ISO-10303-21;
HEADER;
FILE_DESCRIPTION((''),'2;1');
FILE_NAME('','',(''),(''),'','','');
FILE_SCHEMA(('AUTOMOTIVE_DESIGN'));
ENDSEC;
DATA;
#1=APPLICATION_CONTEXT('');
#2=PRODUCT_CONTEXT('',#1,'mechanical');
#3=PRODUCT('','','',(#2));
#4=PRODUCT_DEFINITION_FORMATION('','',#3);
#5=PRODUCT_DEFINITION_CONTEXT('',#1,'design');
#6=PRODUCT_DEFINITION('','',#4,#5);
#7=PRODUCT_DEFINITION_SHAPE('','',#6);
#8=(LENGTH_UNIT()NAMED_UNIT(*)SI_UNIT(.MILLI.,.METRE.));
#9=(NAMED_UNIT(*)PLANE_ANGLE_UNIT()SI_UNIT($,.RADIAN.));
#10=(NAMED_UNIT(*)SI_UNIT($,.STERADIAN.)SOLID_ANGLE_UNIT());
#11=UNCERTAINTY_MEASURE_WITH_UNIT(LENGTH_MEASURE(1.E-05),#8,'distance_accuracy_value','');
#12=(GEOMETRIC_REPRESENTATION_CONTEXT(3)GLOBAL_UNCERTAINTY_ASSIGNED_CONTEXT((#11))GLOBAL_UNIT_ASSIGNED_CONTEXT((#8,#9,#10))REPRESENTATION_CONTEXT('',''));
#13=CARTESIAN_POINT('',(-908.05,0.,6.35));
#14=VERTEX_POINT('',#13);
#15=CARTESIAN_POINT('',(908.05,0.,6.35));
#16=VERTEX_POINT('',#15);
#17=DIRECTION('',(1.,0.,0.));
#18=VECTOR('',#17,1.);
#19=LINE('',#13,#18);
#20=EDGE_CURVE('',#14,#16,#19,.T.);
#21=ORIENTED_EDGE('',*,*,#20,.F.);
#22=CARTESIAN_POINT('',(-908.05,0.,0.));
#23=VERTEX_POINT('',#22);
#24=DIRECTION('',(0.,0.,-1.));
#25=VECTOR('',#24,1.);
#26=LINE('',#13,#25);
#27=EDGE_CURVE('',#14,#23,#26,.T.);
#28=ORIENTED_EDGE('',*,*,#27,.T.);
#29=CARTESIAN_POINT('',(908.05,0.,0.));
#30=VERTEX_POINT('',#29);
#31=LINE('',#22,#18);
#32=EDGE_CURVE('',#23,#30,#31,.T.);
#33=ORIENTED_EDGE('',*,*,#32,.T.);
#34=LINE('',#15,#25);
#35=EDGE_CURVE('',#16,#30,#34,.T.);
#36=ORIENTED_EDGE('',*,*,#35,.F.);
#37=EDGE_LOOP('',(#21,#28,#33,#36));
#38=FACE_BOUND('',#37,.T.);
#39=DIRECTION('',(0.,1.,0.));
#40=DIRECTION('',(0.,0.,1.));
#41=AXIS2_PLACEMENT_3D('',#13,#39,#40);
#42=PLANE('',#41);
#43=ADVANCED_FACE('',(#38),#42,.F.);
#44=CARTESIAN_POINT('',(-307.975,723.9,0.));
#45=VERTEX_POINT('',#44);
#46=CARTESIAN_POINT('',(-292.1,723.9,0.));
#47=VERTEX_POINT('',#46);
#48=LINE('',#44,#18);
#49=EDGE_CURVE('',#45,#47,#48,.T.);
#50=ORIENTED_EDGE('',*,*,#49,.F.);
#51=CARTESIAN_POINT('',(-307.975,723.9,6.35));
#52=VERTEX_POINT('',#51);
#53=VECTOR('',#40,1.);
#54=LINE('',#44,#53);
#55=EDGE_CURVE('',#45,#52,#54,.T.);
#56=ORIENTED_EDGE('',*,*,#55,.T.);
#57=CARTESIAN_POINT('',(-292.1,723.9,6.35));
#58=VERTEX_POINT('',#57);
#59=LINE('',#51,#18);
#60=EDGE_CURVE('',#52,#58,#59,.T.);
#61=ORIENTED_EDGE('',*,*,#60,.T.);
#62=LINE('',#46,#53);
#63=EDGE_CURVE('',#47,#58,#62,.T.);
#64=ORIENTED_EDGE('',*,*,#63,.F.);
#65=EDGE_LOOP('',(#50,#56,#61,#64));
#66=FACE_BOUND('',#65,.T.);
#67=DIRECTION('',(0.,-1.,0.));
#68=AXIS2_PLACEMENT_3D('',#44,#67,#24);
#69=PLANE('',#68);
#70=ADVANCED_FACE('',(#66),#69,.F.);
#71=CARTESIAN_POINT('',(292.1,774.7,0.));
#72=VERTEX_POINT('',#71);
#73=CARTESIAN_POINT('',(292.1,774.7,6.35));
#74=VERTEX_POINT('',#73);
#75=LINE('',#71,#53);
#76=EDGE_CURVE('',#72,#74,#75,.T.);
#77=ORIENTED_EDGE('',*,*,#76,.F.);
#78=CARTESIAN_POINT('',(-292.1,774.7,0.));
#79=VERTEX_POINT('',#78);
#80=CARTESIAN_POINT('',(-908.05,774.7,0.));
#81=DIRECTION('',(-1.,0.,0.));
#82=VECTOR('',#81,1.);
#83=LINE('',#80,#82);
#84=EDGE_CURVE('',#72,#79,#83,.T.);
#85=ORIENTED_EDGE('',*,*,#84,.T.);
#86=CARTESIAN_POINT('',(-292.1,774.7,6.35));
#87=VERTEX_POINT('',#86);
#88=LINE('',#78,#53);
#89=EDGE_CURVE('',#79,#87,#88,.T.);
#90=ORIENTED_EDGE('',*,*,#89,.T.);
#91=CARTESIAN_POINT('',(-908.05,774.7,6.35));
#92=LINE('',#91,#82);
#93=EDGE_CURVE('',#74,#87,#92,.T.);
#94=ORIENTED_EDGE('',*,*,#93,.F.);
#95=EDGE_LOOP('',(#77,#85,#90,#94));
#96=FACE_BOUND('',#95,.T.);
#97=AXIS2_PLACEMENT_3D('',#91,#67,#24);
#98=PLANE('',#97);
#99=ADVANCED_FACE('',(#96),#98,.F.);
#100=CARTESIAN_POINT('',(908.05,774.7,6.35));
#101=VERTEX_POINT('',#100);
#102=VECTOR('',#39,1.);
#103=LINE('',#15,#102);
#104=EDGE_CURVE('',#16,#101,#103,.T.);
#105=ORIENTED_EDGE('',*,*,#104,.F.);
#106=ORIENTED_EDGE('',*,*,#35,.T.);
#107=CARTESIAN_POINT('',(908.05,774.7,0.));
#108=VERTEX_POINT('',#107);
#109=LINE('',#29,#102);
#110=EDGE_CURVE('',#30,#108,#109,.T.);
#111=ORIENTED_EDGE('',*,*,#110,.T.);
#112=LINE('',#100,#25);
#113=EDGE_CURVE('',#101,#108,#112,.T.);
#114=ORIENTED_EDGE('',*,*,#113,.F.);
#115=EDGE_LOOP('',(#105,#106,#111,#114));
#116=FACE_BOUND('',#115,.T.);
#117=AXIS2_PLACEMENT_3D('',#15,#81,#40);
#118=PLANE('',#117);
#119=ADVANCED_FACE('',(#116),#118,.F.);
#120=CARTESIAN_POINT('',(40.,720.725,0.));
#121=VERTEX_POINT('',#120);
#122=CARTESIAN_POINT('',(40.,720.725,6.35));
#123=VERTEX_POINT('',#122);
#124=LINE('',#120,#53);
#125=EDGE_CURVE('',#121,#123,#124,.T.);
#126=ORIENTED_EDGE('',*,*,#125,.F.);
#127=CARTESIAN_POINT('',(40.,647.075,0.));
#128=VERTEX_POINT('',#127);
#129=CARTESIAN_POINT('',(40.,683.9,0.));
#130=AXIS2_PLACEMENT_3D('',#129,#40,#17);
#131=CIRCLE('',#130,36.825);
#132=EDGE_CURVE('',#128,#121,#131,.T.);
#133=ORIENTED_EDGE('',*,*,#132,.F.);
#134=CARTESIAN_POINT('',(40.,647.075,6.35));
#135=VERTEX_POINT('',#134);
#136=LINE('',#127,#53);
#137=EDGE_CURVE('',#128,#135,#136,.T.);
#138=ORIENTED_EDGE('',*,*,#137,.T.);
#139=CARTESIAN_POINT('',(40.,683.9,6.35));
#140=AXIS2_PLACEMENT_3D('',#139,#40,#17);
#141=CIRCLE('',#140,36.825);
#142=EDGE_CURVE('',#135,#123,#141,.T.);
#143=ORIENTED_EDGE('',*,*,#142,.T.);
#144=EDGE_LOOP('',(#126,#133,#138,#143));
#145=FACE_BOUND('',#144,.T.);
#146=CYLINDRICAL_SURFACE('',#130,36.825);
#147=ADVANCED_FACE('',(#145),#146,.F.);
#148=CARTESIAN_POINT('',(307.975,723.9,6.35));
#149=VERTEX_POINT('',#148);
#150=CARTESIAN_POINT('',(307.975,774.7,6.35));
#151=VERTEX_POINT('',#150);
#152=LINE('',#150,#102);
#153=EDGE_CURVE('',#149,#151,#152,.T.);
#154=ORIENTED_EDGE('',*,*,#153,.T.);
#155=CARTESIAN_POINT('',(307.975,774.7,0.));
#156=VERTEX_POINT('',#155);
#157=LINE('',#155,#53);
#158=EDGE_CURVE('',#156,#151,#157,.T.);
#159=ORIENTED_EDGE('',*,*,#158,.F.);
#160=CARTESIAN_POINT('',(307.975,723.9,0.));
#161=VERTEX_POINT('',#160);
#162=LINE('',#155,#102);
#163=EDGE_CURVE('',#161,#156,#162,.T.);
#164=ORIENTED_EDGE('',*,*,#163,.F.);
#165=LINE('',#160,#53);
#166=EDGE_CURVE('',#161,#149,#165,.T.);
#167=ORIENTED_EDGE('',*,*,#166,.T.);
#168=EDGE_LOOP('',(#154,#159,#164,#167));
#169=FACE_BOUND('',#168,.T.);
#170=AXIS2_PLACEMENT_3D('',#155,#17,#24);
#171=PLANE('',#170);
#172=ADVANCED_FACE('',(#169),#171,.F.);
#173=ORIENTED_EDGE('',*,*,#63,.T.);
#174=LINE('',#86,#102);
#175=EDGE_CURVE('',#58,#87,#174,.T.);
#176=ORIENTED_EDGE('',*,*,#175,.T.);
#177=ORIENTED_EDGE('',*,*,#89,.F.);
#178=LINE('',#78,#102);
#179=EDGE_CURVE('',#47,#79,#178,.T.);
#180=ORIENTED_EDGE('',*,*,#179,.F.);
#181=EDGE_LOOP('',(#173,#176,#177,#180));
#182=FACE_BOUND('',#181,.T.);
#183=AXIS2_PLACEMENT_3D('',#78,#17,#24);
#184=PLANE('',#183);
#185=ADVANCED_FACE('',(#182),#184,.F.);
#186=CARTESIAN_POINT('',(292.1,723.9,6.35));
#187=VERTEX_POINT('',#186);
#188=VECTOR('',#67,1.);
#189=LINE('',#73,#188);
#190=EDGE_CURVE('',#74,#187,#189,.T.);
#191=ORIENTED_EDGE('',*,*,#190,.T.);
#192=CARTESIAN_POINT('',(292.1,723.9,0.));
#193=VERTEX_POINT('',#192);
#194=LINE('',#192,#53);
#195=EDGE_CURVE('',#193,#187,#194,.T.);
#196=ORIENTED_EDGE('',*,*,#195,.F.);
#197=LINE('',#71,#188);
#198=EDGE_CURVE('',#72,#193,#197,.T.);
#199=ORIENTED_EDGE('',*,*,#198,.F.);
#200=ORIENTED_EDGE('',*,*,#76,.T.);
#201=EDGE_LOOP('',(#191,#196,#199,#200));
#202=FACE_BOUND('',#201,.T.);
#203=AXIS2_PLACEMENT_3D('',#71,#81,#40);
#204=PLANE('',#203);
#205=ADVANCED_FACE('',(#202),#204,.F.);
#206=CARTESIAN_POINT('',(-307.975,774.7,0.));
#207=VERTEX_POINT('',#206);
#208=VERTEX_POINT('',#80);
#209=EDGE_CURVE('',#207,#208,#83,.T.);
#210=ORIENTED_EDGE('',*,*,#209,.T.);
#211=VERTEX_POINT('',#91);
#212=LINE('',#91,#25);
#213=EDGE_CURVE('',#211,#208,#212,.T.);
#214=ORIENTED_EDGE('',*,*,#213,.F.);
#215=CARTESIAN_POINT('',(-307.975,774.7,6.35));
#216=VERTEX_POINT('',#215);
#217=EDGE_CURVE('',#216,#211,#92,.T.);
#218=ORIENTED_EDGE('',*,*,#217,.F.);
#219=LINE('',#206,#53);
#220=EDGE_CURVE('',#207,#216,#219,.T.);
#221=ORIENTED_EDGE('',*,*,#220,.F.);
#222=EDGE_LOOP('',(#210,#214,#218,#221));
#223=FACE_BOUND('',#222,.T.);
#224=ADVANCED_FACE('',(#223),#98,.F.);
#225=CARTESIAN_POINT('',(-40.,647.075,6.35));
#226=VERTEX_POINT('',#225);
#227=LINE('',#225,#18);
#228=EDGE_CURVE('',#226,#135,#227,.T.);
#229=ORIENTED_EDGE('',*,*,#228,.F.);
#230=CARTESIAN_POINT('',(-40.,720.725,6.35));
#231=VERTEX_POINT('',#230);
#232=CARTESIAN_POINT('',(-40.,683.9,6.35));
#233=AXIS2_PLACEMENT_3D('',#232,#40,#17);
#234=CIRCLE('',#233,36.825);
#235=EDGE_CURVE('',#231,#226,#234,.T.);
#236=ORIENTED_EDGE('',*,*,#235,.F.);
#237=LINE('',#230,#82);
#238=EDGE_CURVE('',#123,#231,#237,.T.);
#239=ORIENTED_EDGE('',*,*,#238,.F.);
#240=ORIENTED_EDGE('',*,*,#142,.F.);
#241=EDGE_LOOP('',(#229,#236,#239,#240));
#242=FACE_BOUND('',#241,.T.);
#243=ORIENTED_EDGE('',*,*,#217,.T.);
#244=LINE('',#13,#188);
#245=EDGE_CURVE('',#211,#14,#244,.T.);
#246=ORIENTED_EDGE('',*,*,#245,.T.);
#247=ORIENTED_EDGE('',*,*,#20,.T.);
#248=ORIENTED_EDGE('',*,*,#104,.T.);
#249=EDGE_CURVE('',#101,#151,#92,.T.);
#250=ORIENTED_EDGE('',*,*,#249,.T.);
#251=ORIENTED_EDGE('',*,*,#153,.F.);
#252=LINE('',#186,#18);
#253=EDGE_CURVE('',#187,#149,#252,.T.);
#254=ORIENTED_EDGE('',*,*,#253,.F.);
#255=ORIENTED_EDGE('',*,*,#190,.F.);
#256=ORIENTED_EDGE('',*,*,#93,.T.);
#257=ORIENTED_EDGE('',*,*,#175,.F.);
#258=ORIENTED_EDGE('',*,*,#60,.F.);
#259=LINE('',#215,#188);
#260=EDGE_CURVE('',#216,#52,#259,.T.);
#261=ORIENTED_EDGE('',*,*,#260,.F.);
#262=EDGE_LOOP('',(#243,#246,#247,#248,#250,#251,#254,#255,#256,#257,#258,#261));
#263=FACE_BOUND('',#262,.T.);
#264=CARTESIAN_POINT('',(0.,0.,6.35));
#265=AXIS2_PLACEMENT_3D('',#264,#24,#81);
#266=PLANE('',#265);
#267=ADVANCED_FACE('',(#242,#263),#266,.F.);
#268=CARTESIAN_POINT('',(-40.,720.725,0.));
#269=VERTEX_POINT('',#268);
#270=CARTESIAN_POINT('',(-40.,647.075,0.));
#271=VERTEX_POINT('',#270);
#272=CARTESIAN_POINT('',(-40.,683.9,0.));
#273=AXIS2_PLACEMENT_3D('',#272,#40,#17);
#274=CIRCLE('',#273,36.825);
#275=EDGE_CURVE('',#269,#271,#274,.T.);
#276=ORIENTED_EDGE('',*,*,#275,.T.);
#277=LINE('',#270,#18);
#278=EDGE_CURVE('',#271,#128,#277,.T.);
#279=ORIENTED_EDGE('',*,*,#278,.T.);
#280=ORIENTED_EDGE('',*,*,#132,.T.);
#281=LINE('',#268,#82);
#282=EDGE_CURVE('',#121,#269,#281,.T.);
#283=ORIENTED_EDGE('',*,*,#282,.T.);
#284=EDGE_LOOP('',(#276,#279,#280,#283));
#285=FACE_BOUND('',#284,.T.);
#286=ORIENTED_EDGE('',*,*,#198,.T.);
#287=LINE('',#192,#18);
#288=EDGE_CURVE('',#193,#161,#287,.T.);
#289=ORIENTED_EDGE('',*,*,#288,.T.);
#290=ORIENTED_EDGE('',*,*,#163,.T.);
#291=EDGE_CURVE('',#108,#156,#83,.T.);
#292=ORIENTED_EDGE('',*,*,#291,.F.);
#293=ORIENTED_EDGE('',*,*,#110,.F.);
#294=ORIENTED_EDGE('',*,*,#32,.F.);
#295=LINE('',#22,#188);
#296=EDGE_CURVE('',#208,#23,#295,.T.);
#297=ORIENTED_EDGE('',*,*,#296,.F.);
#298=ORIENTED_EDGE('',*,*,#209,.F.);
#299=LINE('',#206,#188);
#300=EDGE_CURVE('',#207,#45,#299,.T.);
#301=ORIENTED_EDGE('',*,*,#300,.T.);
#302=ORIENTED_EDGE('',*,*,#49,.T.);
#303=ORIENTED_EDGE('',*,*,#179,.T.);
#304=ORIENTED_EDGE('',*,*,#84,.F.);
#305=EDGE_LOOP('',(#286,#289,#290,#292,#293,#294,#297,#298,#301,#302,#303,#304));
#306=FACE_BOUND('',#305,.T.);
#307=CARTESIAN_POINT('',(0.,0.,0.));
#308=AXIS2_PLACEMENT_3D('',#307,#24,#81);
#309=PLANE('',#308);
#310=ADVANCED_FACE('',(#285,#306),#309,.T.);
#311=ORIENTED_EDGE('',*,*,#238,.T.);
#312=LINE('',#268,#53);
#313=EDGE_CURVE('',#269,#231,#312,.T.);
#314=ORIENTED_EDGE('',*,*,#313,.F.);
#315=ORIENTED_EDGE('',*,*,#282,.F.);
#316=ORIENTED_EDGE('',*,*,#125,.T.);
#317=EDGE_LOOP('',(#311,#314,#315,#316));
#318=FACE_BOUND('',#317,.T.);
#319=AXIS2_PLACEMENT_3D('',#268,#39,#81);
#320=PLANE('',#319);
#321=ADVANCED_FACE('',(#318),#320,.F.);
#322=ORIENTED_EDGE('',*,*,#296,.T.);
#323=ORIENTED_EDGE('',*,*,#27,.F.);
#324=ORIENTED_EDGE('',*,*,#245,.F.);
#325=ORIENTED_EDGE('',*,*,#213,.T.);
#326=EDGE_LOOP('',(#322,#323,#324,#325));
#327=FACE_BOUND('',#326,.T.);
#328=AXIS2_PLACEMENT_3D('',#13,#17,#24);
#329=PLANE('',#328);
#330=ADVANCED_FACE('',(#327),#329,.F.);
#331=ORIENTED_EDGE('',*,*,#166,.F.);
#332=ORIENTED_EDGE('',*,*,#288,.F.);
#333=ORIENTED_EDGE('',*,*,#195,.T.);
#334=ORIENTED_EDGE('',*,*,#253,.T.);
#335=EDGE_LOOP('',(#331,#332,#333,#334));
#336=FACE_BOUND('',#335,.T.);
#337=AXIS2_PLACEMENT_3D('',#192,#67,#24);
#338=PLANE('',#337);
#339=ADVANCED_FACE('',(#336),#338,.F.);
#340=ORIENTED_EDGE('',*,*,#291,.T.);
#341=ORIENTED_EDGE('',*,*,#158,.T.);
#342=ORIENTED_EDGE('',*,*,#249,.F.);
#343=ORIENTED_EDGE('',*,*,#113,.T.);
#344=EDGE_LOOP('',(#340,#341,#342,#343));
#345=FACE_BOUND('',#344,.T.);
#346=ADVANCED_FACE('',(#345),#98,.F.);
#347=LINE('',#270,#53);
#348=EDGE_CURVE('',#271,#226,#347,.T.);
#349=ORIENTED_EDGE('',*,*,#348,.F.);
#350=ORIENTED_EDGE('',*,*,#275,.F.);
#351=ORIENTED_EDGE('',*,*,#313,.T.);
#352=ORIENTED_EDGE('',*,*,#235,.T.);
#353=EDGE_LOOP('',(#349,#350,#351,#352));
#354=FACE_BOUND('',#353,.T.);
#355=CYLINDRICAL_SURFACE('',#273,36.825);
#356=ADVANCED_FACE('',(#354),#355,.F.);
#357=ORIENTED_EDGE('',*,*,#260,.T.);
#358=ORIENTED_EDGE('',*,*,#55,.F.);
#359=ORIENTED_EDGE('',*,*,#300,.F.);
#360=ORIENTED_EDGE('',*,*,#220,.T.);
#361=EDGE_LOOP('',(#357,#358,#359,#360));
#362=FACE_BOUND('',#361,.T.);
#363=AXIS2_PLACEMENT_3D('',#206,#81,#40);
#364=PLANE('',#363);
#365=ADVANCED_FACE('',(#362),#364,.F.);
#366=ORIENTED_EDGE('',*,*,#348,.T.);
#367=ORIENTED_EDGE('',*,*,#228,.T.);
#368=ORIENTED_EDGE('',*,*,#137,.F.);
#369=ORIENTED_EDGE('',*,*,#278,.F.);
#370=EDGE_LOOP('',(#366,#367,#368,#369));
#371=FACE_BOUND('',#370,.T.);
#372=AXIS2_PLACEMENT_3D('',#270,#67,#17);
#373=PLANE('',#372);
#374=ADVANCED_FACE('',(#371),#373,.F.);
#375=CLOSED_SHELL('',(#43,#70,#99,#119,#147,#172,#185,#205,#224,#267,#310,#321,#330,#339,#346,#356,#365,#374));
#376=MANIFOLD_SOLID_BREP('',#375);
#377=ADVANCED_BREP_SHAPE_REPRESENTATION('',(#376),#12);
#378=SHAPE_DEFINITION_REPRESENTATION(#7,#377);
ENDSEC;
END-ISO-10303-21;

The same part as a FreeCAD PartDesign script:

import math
import FreeCAD as App
import Part
import Sketcher
Q = App.Units.Quantity


def add_polygon(sketch, points):
    """Adds a closed chain of lines whose ends are joined by coincident constraints."""
    first, n = sketch.GeometryCount, len(points)
    for a, b in zip(points, points[1:] + points[:1]):
        sketch.addGeometry(Part.LineSegment(App.Vector(*a, 0), App.Vector(*b, 0)), False)
    for i in range(n):
        sketch.addConstraint(Sketcher.Constraint("Coincident", first + i, 2, first + (i + 1) % n, 1))

doc = App.newDocument("Part")
params = doc.addObject("Spreadsheet::Sheet", "Params")
for row, (alias, value) in enumerate([
    ("sketch1_width", "71.5 in"),
    ("sketch1_height", "30.5 in"),
    ("pad1_length", "0.25 in"),
    ("sketch2_height", "2 in"),
    ("sketch2_width", "0.625 in"),
], start=1):
    params.set(f"A{row}", alias)
    params.set(f"B{row}", "=" + value)
    params.setAlias(f"B{row}", alias)

body = doc.addObject("PartDesign::Body", "Body")

# Sketch on XY plane
sketch1 = doc.addObject("Sketcher::SketchObject", "Sketch")
body.addObject(sketch1)
sketch1.AttachmentSupport = (doc.XY_Plane, [""])
sketch1.MapMode = "FlatFace"
add_polygon(sketch1, [(-908.05, 774.7), (-908.05, 0), (908.05, 0), (908.05, 774.7)])  # lines 0-3
sketch1.addConstraint([
    Sketcher.Constraint("Vertical", 0),
    Sketcher.Constraint("Horizontal", 1),
    Sketcher.Constraint("Vertical", 2),
    Sketcher.Constraint("Horizontal", 3),
    Sketcher.Constraint("Symmetric", 0, 2, 1, 2, -1, 1),
    Sketcher.Constraint("DistanceX", 1, 1, 1, 2, Q("71.5 in")),
    Sketcher.Constraint("DistanceY", 0, 2, 0, 1, Q("30.5 in")),
])
sketch1.setExpression("Constraints[9]", "Params.sketch1_width")
sketch1.setExpression("Constraints[10]", "Params.sketch1_height")
pad1 = doc.addObject("PartDesign::Pad", "Pad")
body.addObject(pad1)
pad1.Profile = sketch1
pad1.setExpression("Length", "Params.pad1_length")

# Sketch on XY plane
sketch2 = doc.addObject("Sketcher::SketchObject", "Sketch001")
body.addObject(sketch2)
sketch2.AttachmentSupport = (doc.XY_Plane, [""])
sketch2.MapMode = "FlatFace"
sketch2.AttachmentOffset = App.Placement(App.Vector(0, 0, 0.25 * 25.4), App.Rotation())
add_polygon(sketch2, [(-307.975, 774.7), (-307.975, 723.9), (-292.1, 723.9), (-292.1, 774.7)])  # lines 0-3
add_polygon(sketch2, [(292.1, 774.7), (292.1, 723.9), (307.975, 723.9), (307.975, 774.7)])  # lines 4-7
sketch2.addConstraint([
    Sketcher.Constraint("Vertical", 0),
    Sketcher.Constraint("Horizontal", 1),
    Sketcher.Constraint("Vertical", 2),
    Sketcher.Constraint("Horizontal", 3),
    Sketcher.Constraint("Vertical", 4),
    Sketcher.Constraint("Horizontal", 5),
    Sketcher.Constraint("Vertical", 6),
    Sketcher.Constraint("Horizontal", 7),
    Sketcher.Constraint("Symmetric", 1, 2, 4, 2, -2),
    Sketcher.Constraint("Symmetric", 3, 2, 6, 2, -2),
    Sketcher.Constraint("DistanceY", 0, 2, 0, 1, Q("2 in")),
    Sketcher.Constraint("DistanceX", 1, 2, 4, 2, Q("23 in")),
    Sketcher.Constraint("DistanceY", -1, 1, 0, 2, Q("28.5 in")),
    Sketcher.Constraint("DistanceX", 1, 1, 1, 2, Q("0.625 in")),
])
sketch2.setExpression("Constraints[18]", "Params.sketch2_height")
sketch2.setExpression("Constraints[21]", "Params.sketch2_width")
pocket1 = doc.addObject("PartDesign::Pocket", "Pocket")
body.addObject(pocket1)
pocket1.Profile = sketch2
pocket1.Type = "ThroughAll"

# Sketch on XY plane
sketch3 = doc.addObject("Sketcher::SketchObject", "Sketch002")
body.addObject(sketch3)
sketch3.AttachmentSupport = (doc.XY_Plane, [""])
sketch3.MapMode = "FlatFace"
sketch3.AttachmentOffset = App.Placement(App.Vector(0, 0, 0.25 * 25.4), App.Rotation())
sketch3.addGeometry([
    Part.LineSegment(App.Vector(40, 720.725, 0), App.Vector(-40, 720.725, 0)),
    Part.ArcOfCircle(Part.Circle(App.Vector(-40, 683.9, 0), App.Vector(0, 0, 1), 36.825), math.radians(90), math.radians(270)),
    Part.LineSegment(App.Vector(-40, 647.075, 0), App.Vector(40, 647.075, 0)),
    Part.ArcOfCircle(Part.Circle(App.Vector(40, 683.9, 0), App.Vector(0, 0, 1), 36.825), math.radians(-90), math.radians(90)),
], False)
sketch3.addConstraint([
    Sketcher.Constraint("Tangent", 0, 2, 1, 1),
    Sketcher.Constraint("Tangent", 1, 2, 2, 1),
    Sketcher.Constraint("Tangent", 2, 2, 3, 1),
    Sketcher.Constraint("Tangent", 3, 2, 0, 1),
    Sketcher.Constraint("Horizontal", 0),
    Sketcher.Constraint("Horizontal", 2),
    Sketcher.Constraint("Radius", 1, Q("36.825 mm")),
    Sketcher.Constraint("DistanceY", -1, 1, 0, 2, Q("28.375 in")),
    Sketcher.Constraint("DistanceX", 0, 2, 0, 1, Q("80 mm")),
    Sketcher.Constraint("DistanceX", 1, 3, -1, 1, Q("40 mm")),
])
pocket2 = doc.addObject("PartDesign::Pocket", "Pocket001")
body.addObject(pocket2)
pocket2.Profile = sketch3
pocket2.Type = "ThroughAll"
pocket2.Midplane = True

doc.recompute()
